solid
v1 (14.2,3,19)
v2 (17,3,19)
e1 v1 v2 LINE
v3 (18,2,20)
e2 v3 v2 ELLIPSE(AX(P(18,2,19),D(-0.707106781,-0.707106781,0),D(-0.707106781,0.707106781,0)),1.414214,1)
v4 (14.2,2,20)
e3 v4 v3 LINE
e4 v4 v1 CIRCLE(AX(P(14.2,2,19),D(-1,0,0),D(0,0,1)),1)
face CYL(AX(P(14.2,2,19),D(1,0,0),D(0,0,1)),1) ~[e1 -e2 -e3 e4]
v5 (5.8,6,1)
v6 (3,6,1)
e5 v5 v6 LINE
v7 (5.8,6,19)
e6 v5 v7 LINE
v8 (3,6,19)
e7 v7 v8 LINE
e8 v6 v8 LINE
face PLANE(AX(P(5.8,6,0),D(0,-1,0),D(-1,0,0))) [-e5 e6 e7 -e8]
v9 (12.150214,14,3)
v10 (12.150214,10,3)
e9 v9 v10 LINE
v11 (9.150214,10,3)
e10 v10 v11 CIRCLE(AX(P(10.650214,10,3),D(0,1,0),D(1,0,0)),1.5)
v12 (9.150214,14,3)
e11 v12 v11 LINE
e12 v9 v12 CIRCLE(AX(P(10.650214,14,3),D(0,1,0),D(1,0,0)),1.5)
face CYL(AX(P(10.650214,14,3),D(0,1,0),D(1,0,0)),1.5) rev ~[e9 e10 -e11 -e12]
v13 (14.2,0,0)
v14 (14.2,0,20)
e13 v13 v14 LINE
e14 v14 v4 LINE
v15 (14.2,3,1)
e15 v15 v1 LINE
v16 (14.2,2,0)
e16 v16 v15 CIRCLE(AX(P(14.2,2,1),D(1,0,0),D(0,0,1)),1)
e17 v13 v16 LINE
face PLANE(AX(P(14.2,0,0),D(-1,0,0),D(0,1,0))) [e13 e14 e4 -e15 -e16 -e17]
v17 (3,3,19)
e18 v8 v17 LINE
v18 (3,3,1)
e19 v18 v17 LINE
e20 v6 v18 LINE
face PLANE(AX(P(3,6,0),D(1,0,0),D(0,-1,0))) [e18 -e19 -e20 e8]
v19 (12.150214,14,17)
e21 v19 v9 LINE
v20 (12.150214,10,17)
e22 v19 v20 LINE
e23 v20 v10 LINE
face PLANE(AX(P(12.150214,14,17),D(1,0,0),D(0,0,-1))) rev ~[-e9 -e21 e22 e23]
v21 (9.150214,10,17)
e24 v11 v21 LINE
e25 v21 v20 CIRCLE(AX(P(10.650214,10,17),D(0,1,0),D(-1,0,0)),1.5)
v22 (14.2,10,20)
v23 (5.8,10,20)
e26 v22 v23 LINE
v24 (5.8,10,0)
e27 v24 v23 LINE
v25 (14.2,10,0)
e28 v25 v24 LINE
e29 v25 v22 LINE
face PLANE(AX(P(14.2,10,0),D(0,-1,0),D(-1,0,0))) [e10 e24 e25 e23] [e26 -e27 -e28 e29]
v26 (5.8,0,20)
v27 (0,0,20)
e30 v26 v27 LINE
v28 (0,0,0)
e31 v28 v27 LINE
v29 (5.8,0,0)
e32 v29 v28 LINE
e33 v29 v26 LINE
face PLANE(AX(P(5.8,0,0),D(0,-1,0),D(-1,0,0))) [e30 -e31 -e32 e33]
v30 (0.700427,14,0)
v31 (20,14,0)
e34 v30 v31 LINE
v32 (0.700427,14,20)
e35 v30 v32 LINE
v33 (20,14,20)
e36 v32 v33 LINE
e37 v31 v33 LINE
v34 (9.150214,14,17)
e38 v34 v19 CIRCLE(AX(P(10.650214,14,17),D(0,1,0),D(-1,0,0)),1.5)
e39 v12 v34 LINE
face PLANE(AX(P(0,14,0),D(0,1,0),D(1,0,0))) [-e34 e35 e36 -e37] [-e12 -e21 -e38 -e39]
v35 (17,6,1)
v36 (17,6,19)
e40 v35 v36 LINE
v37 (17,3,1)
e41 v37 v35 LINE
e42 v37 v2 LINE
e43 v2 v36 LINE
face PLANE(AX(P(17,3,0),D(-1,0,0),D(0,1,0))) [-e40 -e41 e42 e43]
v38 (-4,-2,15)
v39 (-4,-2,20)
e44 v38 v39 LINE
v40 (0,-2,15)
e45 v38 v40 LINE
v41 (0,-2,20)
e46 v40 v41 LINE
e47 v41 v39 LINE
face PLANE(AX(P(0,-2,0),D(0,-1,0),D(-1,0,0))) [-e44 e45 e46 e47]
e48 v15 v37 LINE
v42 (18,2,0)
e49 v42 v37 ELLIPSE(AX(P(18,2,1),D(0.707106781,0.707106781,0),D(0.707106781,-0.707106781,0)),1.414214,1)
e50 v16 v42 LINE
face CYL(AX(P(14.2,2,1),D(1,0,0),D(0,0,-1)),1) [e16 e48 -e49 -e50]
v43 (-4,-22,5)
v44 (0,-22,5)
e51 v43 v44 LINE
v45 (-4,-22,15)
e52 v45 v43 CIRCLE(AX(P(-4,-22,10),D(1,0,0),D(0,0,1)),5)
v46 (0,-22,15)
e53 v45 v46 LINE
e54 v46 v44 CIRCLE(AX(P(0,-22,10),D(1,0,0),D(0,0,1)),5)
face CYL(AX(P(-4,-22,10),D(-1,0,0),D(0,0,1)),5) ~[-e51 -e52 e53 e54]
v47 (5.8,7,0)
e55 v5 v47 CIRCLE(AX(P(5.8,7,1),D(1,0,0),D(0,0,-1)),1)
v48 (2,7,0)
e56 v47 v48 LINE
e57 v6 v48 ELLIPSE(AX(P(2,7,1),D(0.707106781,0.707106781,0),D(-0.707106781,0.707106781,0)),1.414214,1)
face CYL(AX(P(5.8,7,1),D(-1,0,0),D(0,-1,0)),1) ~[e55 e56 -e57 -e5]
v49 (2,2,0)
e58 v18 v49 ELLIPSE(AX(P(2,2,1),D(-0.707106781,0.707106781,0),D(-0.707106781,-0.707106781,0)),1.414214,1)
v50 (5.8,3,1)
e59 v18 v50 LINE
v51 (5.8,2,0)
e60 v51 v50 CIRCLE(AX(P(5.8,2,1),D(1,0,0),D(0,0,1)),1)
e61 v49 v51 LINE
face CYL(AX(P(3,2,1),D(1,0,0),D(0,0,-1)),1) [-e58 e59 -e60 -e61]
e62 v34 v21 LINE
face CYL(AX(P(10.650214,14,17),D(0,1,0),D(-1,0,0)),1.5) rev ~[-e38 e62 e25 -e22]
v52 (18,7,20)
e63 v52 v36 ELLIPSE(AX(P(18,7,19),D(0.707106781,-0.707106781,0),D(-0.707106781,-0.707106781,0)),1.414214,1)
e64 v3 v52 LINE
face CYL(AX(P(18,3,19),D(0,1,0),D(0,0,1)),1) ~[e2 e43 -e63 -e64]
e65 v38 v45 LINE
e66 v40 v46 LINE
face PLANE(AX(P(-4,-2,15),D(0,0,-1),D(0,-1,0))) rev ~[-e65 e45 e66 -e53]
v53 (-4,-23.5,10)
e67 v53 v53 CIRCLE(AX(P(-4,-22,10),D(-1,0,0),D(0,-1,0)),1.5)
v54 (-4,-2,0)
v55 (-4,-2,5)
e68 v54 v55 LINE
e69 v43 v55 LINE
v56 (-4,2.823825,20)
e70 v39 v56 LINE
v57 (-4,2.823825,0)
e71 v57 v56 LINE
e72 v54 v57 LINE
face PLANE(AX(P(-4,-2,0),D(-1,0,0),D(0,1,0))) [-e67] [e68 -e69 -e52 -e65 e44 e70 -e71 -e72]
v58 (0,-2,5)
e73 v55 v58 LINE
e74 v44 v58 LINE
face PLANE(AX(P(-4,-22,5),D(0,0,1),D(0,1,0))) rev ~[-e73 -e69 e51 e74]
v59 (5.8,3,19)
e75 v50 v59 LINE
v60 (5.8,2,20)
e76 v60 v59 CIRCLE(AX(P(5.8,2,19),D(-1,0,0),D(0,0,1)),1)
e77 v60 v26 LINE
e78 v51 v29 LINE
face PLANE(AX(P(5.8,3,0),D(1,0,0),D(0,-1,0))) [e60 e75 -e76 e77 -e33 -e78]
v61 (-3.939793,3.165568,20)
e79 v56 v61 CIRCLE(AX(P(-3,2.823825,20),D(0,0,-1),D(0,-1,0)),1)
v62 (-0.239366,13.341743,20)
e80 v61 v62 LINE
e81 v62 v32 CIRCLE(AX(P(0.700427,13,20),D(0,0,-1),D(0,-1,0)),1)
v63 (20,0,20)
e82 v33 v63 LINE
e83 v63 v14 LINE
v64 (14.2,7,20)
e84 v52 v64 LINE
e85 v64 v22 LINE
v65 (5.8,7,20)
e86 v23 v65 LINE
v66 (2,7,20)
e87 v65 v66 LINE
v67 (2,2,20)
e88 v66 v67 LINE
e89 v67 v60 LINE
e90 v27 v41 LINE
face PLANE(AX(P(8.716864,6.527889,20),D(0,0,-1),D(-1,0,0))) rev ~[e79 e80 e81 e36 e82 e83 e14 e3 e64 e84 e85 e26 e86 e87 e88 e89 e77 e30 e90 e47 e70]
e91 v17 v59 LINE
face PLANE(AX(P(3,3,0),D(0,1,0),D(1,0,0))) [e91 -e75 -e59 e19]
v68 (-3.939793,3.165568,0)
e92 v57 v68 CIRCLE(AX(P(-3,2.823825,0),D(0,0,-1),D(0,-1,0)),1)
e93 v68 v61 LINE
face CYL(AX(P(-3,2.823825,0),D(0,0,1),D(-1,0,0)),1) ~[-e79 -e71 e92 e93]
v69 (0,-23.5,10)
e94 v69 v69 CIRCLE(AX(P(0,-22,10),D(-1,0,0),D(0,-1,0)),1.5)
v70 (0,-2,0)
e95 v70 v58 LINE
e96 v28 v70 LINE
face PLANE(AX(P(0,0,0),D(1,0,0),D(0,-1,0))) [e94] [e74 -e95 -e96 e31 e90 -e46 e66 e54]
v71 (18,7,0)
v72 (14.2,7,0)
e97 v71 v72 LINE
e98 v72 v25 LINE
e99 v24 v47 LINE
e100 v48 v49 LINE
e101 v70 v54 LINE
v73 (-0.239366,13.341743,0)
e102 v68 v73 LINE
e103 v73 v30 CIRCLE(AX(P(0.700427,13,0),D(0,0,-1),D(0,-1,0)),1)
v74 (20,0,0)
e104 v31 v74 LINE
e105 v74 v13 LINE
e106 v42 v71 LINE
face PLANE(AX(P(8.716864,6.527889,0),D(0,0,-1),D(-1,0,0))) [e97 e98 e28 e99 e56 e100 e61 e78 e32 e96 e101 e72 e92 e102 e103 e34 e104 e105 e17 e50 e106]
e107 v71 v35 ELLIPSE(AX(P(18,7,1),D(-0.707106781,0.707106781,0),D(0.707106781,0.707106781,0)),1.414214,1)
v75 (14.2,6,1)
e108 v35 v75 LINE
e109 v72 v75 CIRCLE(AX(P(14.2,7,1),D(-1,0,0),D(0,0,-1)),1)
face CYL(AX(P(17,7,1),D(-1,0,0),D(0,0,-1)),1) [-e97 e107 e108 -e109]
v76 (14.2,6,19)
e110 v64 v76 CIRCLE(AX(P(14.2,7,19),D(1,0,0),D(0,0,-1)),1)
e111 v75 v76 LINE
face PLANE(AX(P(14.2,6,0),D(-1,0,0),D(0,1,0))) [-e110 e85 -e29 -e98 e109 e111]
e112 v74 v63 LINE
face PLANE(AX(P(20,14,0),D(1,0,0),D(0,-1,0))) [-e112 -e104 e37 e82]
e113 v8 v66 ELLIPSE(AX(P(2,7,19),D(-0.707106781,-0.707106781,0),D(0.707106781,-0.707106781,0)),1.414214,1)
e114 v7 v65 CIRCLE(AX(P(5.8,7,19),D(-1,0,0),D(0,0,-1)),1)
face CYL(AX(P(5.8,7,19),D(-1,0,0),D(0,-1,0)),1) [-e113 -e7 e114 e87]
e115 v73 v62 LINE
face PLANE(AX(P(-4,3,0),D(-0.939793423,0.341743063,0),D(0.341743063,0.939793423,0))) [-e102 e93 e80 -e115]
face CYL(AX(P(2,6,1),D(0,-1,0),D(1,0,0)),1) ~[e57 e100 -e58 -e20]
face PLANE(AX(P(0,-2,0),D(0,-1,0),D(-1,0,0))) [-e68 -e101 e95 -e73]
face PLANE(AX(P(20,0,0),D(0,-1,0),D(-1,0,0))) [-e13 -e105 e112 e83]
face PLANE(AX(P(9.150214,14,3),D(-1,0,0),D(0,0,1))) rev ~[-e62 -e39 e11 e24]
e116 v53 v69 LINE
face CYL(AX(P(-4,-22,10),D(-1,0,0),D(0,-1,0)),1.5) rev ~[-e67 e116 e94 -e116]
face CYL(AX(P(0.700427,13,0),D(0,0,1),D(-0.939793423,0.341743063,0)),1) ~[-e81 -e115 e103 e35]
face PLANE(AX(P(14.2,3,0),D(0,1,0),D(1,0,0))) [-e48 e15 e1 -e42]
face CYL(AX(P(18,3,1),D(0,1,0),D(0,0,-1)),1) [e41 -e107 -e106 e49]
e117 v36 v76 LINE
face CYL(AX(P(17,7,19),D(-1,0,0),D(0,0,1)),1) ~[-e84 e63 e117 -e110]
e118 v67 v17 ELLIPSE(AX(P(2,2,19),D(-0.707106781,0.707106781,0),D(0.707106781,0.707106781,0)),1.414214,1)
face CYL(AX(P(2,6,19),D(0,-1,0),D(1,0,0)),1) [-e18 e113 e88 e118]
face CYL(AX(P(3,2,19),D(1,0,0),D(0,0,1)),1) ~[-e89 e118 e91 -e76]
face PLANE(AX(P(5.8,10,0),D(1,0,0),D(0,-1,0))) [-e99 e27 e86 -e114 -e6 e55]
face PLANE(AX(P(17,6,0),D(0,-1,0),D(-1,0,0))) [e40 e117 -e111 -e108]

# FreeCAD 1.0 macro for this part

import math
import FreeCAD as App
import Part
import Sketcher

V = App.Vector


def edges_at(feature, points):
    """Names of the edges that pass closest to the given points."""
    edges = feature.Shape.Edges
    near = lambda p: min(range(len(edges)), key=lambda i: edges[i].distToShape(Part.Vertex(*p))[0])
    return sorted({f"Edge{near(p) + 1}" for p in points})


def add_polygon(sketch, points):
    """Adds a closed chain of lines whose ends are joined by coincident constraints."""
    first, n = sketch.GeometryCount, len(points)
    for a, b in zip(points, points[1:] + points[:1]):
        sketch.addGeometry(Part.LineSegment(App.Vector(*a, 0), App.Vector(*b, 0)), False)
    for i in range(n):
        sketch.addConstraint(Sketcher.Constraint("Coincident", first + i, 2, first + (i + 1) % n, 1))

doc = App.newDocument("Part")
body = doc.addObject("PartDesign::Body", "Body")

sketch1 = doc.addObject("Sketcher::SketchObject", "Sketch")
body.addObject(sketch1)
sketch1.AttachmentSupport = (doc.XY_Plane, [""])
sketch1.MapMode = "FlatFace"
add_polygon(sketch1, [(3, 6), (5.8, 6), (5.8, 10), (14.2, 10), (14.2, 6), (17, 6), (17, 3), (14.2, 3), (14.2, 0), (20, 0), (20, 14), (0, 14), (-4, 3), (-4, -2), (0, -2), (0, 0), (5.8, 0), (5.8, 3), (3, 3)])
sketch1.addConstraint(Sketcher.Constraint("Horizontal", 0))
sketch1.addConstraint(Sketcher.Constraint("Vertical", 1))
sketch1.addConstraint(Sketcher.Constraint("Horizontal", 2))
sketch1.addConstraint(Sketcher.Constraint("Vertical", 3))
sketch1.addConstraint(Sketcher.Constraint("Horizontal", 4))
sketch1.addConstraint(Sketcher.Constraint("Vertical", 5))
sketch1.addConstraint(Sketcher.Constraint("Horizontal", 6))
sketch1.addConstraint(Sketcher.Constraint("Vertical", 7))
sketch1.addConstraint(Sketcher.Constraint("Horizontal", 8))
sketch1.addConstraint(Sketcher.Constraint("Vertical", 9))
sketch1.addConstraint(Sketcher.Constraint("Horizontal", 10))
sketch1.addConstraint(Sketcher.Constraint("Vertical", 12))
sketch1.addConstraint(Sketcher.Constraint("Horizontal", 13))
sketch1.addConstraint(Sketcher.Constraint("Vertical", 14))
sketch1.addConstraint(Sketcher.Constraint("Horizontal", 15))
sketch1.addConstraint(Sketcher.Constraint("Vertical", 16))
sketch1.addConstraint(Sketcher.Constraint("Horizontal", 17))
sketch1.addConstraint(Sketcher.Constraint("Vertical", 18))
sketch1.addConstraint(Sketcher.Constraint("Coincident", 14, 2, -1, 1))
sketch1.addConstraint(Sketcher.Constraint("PointOnObject", 7, 2, -1))
sketch1.addConstraint(Sketcher.Constraint("PointOnObject", 10, 2, -2))
sketch1.addConstraint(Sketcher.Constraint("Horizontal", 0, 2, 3, 2))
sketch1.addConstraint(Sketcher.Constraint("Horizontal", 6, 2, 11, 2))
sketch1.addConstraint(Sketcher.Constraint("Horizontal", 11, 2, 16, 2))
sketch1.addConstraint(Sketcher.Constraint("Vertical", 3, 2, 6, 2))
sketch1.addConstraint(Sketcher.Constraint("Vertical", 1, 2, 15, 2))
sketch1.addConstraint(Sketcher.Constraint("Equal", 0, 4))
sketch1.addConstraint(Sketcher.Constraint("Equal", 8, 15))
sketch1.addConstraint(Sketcher.Constraint("Equal", 13, 1))
sketch1.addConstraint(Sketcher.Constraint("Equal", 5, 7))
sketch1.addConstraint(Sketcher.Constraint("DistanceX", 10, 2, 10, 1, 20.0))
sketch1.addConstraint(Sketcher.Constraint("DistanceX", 13, 1, 13, 2, 4.0))
sketch1.addConstraint(Sketcher.Constraint("DistanceY", 5, 2, 5, 1, 3.0))
sketch1.addConstraint(Sketcher.Constraint("DistanceY", 9, 1, 9, 2, 14.0))
sketch1.addConstraint(Sketcher.Constraint("DistanceY", 12, 2, 12, 1, 5.0))
sketch1.addConstraint(Sketcher.Constraint("DistanceX", 0, 1, 0, 2, 2.8))
sketch1.addConstraint(Sketcher.Constraint("DistanceX", 2, 1, 2, 2, 8.4))
pad1 = doc.addObject("PartDesign::Pad", "Pad")
body.addObject(pad1)
pad1.Profile = sketch1
pad1.Length = 20

sketch2 = doc.addObject("Sketcher::SketchObject", "Sketch001")
body.addObject(sketch2)
sketch2.AttachmentSupport = (doc.YZ_Plane, [""])
sketch2.MapMode = "FlatFace"
sketch2.AttachmentOffset = App.Placement(V(0, 0, -4), App.Rotation())
sketch2.addGeometry(Part.LineSegment(V(-2, 15, 0), V(-2, 5, 0)), False)
sketch2.addGeometry(Part.LineSegment(V(-2, 5, 0), V(-22, 5, 0)), False)
sketch2.addGeometry(Part.ArcOfCircle(Part.Circle(V(-22, 10, 0), V(0, 0, 1), 5), math.radians(90), math.radians(270)), False)
sketch2.addGeometry(Part.LineSegment(V(-22, 15, 0), V(-2, 15, 0)), False)
sketch2.addGeometry(Part.Circle(V(-22, 10, 0), V(0, 0, 1), 1.5), False)
sketch2.addConstraint(Sketcher.Constraint("Coincident", 0, 2, 1, 1))
sketch2.addConstraint(Sketcher.Constraint("Tangent", 1, 2, 2, 2))
sketch2.addConstraint(Sketcher.Constraint("Tangent", 2, 1, 3, 1))
sketch2.addConstraint(Sketcher.Constraint("Coincident", 3, 2, 0, 1))
sketch2.addConstraint(Sketcher.Constraint("Vertical", 0))
sketch2.addConstraint(Sketcher.Constraint("Horizontal", 1))
sketch2.addConstraint(Sketcher.Constraint("Horizontal", 3))
sketch2.addConstraint(Sketcher.Constraint("Coincident", 4, 3, 2, 3))
sketch2.addConstraint(Sketcher.Constraint("Diameter", 4, 3.0))
sketch2.addConstraint(Sketcher.Constraint("Radius", 2, 5.0))
sketch2.addConstraint(Sketcher.Constraint("DistanceX", 1, 2, 1, 1, 20.0))
sketch2.addConstraint(Sketcher.Constraint("DistanceX", 2, 3, -1, 1, 22.0))
sketch2.addConstraint(Sketcher.Constraint("DistanceY", -1, 1, 2, 3, 10.0))
pad2 = doc.addObject("PartDesign::Pad", "Pad001")
body.addObject(pad2)
pad2.Profile = sketch2
pad2.Length = 4
doc.recompute()

fillet = doc.addObject("PartDesign::Fillet", "Fillet")
body.addObject(fillet)
fillet.Base = (pad2, edges_at(pad2, [
    (4.4, 3, 20),
    (3, 4.5, 20),
    (15.6, 3, 0),
    (17, 4.5, 0),
    (15.6, 6, 0),
    (4.4, 6, 0),
    (3, 4.5, 0),
    (4.4, 3, 0),
    (4.4, 6, 20),
    (-4, 3, 10),
    (0, 14, 10),
    (15.6, 6, 20),
    (17, 4.5, 20),
    (15.6, 3, 20),
]))
fillet.Radius = 1

sketch3 = doc.addObject("Sketcher::SketchObject", "Sketch002")
body.addObject(sketch3)
sketch3.AttachmentSupport = (doc.XZ_Plane, [""])
sketch3.MapMode = "FlatFace"
sketch3.AttachmentOffset = App.Placement(V(0, 0, -14), App.Rotation())
sketch3.addGeometry(Part.LineSegment(V(9.2, 3, 0), V(9.2, 17, 0)), False)
sketch3.addGeometry(Part.ArcOfCircle(Part.Circle(V(10.7, 17, 0), V(0, 0, 1), 1.5), math.radians(0), math.radians(180)), False)
sketch3.addGeometry(Part.LineSegment(V(12.2, 17, 0), V(12.2, 3, 0)), False)
sketch3.addGeometry(Part.ArcOfCircle(Part.Circle(V(10.7, 3, 0), V(0, 0, 1), 1.5), math.radians(180), math.radians(360)), False)
sketch3.addConstraint(Sketcher.Constraint("Tangent", 0, 2, 1, 2))
sketch3.addConstraint(Sketcher.Constraint("Tangent", 1, 1, 2, 1))
sketch3.addConstraint(Sketcher.Constraint("Tangent", 2, 2, 3, 2))
sketch3.addConstraint(Sketcher.Constraint("Tangent", 3, 1, 0, 1))
sketch3.addConstraint(Sketcher.Constraint("Vertical", 0))
sketch3.addConstraint(Sketcher.Constraint("Vertical", 2))
sketch3.addConstraint(Sketcher.Constraint("Radius", 1, 1.5))
sketch3.addConstraint(Sketcher.Constraint("DistanceY", 0, 1, 0, 2, 14.0))
sketch3.addConstraint(Sketcher.Constraint("DistanceY", -1, 1, 1, 3, 17.0))
sketch3.addConstraint(Sketcher.Constraint("DistanceX", -1, 1, 1, 3, 10.650214))
pocket1 = doc.addObject("PartDesign::Pocket", "Pocket")
body.addObject(pocket1)
pocket1.Profile = sketch3
pocket1.Type = "UpToFirst"
pocket1.Reversed = True

doc.recompute()
